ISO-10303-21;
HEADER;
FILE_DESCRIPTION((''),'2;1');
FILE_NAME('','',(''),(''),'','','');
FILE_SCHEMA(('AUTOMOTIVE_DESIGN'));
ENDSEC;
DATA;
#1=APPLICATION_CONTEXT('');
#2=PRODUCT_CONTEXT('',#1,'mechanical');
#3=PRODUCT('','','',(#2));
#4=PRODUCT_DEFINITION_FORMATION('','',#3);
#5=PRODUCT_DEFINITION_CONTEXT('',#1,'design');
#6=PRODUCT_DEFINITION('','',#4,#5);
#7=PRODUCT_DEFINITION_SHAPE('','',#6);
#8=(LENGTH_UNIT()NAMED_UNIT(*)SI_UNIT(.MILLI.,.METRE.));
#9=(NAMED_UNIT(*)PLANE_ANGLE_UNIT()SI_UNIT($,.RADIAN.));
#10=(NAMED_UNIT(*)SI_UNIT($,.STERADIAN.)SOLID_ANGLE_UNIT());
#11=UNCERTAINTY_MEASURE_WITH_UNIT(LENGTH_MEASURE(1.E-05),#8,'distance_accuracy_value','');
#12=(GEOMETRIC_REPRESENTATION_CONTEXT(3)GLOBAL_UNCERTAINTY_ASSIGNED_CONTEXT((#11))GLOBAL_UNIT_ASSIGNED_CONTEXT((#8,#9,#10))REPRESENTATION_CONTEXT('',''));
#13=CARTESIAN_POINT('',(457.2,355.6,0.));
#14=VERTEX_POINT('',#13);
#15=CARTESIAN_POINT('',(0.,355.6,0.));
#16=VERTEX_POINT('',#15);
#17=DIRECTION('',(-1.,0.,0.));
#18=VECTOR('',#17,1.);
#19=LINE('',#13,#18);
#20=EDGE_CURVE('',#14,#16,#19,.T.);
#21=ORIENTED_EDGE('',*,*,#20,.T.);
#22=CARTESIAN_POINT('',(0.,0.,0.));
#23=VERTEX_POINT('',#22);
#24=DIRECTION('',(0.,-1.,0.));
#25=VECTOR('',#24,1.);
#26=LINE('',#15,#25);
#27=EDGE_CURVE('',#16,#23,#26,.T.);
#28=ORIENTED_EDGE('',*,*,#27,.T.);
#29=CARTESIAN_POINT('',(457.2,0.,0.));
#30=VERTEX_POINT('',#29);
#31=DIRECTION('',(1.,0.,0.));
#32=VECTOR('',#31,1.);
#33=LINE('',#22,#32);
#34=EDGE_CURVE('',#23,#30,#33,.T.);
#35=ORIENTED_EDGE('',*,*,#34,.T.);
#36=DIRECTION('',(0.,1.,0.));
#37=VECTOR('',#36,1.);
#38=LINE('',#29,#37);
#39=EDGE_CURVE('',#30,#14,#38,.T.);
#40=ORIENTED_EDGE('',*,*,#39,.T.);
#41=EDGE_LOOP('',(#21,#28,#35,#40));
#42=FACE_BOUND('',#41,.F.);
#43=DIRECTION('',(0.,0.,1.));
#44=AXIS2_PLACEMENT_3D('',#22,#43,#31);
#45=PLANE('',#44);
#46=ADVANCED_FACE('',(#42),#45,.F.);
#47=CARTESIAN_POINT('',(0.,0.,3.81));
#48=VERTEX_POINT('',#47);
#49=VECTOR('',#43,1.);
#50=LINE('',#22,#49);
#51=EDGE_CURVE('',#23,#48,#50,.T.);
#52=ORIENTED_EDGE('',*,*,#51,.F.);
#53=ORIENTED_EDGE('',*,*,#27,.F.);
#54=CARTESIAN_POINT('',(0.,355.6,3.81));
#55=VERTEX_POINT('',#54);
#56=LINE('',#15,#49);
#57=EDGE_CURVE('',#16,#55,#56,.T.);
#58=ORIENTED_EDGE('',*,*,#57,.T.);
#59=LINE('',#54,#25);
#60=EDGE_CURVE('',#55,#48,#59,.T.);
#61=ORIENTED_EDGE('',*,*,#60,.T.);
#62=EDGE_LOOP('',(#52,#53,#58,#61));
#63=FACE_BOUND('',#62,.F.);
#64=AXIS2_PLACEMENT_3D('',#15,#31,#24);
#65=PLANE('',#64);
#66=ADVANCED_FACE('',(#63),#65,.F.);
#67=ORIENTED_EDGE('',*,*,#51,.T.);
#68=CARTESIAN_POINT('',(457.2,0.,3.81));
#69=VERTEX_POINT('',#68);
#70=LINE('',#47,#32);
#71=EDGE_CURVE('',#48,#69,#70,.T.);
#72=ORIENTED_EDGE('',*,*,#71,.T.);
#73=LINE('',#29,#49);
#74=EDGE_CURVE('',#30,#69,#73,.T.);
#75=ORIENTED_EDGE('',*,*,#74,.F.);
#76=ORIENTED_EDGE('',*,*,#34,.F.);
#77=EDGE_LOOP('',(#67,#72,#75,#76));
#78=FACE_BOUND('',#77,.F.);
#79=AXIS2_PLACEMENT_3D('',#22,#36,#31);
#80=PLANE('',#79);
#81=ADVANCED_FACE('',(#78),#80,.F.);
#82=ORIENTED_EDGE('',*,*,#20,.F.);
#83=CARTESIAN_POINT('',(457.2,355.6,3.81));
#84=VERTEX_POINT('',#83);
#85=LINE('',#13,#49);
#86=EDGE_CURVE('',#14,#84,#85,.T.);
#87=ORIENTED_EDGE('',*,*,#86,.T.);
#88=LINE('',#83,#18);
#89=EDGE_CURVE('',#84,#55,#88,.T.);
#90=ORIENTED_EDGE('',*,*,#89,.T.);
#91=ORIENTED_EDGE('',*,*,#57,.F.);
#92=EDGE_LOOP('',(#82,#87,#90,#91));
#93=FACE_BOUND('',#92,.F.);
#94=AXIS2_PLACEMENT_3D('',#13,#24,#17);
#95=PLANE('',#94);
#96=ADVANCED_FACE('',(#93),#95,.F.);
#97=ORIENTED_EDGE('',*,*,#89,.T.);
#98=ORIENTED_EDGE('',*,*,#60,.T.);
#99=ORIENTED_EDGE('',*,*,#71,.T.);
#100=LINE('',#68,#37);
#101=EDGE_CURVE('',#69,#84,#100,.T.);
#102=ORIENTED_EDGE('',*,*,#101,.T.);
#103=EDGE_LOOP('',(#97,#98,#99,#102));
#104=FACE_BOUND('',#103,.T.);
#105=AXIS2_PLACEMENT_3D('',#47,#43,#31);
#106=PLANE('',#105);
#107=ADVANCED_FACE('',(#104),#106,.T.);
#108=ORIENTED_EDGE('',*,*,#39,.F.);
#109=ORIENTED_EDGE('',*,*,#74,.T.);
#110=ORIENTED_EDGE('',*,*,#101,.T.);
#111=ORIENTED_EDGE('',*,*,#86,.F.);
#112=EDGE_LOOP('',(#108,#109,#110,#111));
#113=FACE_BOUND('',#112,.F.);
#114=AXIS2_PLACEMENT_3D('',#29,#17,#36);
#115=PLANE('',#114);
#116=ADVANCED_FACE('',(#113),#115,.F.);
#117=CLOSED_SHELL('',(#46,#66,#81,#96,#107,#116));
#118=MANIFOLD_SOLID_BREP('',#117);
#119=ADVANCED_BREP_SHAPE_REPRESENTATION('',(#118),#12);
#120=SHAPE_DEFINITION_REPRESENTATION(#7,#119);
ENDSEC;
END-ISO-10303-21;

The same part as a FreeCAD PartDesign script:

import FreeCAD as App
import Part
import Sketcher

V = App.Vector
Q = App.Units.Quantity

doc = App.newDocument("Part")
params = doc.addObject("Spreadsheet::Sheet", "Params")
for row, (alias, value) in enumerate([
    ("sketch1_width", "18 in"),
    ("sketch1_height", "14 in"),
    ("pad1_length", "0.15 in"),
], start=1):
    params.set(f"A{row}", alias)
    params.set(f"B{row}", "=" + value)
    params.setAlias(f"B{row}", alias)

body = doc.addObject("PartDesign::Body", "Body")

sketch1 = doc.addObject("Sketcher::SketchObject", "Sketch")
body.addObject(sketch1)
sketch1.AttachmentSupport = (doc.XY_Plane, [""])
sketch1.MapMode = "FlatFace"
sketch1.addGeometry(Part.LineSegment(V(0, 356, 0), V(0, 0, 0)), False)
sketch1.addGeometry(Part.LineSegment(V(0, 0, 0), V(457, 0, 0)), False)
sketch1.addGeometry(Part.LineSegment(V(457, 0, 0), V(457, 356, 0)), False)
sketch1.addGeometry(Part.LineSegment(V(457, 356, 0), V(0, 356, 0)), False)
sketch1.addConstraint(Sketcher.Constraint("Coincident", 0, 2, 1, 1))
sketch1.addConstraint(Sketcher.Constraint("Coincident", 1, 2, 2, 1))
sketch1.addConstraint(Sketcher.Constraint("Coincident", 2, 2, 3, 1))
sketch1.addConstraint(Sketcher.Constraint("Coincident", 3, 2, 0, 1))
sketch1.addConstraint(Sketcher.Constraint("Vertical", 0))
sketch1.addConstraint(Sketcher.Constraint("Horizontal", 1))
sketch1.addConstraint(Sketcher.Constraint("Vertical", 2))
sketch1.addConstraint(Sketcher.Constraint("Horizontal", 3))
sketch1.addConstraint(Sketcher.Constraint("Coincident", 0, 2, -1, 1))
sketch1.addConstraint(Sketcher.Constraint("DistanceX", 1, 1, 1, 2, Q("18 in")))
sketch1.addConstraint(Sketcher.Constraint("DistanceY", 0, 2, 0, 1, Q("14 in")))
sketch1.setExpression("Constraints[9]", "Params.sketch1_width")
sketch1.setExpression("Constraints[10]", "Params.sketch1_height")
pad1 = doc.addObject("PartDesign::Pad", "Pad")
body.addObject(pad1)
pad1.Profile = sketch1
pad1.setExpression("Length", "Params.pad1_length")

doc.recompute()
